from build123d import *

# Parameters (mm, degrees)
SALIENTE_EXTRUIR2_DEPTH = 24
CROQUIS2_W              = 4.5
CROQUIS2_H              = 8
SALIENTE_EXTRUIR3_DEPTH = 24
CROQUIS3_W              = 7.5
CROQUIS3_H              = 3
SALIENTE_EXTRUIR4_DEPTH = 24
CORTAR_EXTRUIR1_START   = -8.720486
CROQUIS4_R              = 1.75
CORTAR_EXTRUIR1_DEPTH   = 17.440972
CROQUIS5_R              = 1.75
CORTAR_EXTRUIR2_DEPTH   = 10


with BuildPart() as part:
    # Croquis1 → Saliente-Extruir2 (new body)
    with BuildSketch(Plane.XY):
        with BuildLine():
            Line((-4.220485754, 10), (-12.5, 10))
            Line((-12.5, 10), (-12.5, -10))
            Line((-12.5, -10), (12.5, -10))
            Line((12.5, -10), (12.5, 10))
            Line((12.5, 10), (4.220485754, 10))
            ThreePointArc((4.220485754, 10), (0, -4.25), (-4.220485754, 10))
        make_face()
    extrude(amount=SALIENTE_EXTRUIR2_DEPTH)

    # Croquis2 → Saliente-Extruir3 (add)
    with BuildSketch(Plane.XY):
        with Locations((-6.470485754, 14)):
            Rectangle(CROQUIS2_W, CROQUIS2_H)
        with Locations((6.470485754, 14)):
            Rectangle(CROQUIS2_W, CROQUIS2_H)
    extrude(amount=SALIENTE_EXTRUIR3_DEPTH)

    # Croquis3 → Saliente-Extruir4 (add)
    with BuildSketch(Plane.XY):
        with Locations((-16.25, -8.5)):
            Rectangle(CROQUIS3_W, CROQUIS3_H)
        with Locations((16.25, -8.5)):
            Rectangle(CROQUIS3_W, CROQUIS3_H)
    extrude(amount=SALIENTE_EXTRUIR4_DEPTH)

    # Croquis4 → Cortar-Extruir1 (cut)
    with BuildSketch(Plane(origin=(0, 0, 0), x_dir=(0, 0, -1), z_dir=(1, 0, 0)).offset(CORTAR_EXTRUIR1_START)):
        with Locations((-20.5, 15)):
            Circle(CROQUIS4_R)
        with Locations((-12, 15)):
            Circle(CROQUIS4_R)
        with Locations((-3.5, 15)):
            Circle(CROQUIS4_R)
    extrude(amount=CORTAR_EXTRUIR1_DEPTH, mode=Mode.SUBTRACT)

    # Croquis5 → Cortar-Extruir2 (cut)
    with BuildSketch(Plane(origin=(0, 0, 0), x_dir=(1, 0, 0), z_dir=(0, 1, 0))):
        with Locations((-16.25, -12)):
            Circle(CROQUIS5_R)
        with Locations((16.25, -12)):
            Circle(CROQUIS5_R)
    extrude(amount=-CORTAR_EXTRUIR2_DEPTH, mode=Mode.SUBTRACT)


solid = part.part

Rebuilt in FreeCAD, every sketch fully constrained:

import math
import FreeCAD as App
import Part
import Sketcher

V = App.Vector

doc = App.newDocument("Part")
params = doc.addObject("Spreadsheet::Sheet", "Params")
for row, (alias, value) in enumerate([
    ("sketch1_width", "25 mm"),
    ("sketch1_height", "20 mm"),
    ("sketch1_radius", "7.75 mm"),
    ("pad1_length", "24 mm"),
    ("sketch2_height", "8 mm"),
    ("sketch2_width", "4.5 mm"),
    ("pad2_length", "24 mm"),
    ("sketch3_height", "3 mm"),
    ("sketch3_width", "7.5 mm"),
    ("pad3_length", "24 mm"),
    ("sketch4_diameter", "3.5 mm"),
    ("pocket1_length", "17.440972 mm"),
    ("sketch5_diameter", "3.5 mm"),
    ("pocket2_length", "10 mm"),
], start=1):
    params.set(f"A{row}", alias)
    params.set(f"B{row}", "=" + value)
    params.setAlias(f"B{row}", alias)

body = doc.addObject("PartDesign::Body", "Body")

sketch1 = body.newObject("Sketcher::SketchObject", "Sketch")
sketch1.AttachmentSupport = (doc.getObject("XY_Plane"), [""])
sketch1.MapMode = "FlatFace"
sketch1.addGeometry([
    Part.LineSegment(V(-4, 10, 0), V(-12, 10, 0)),
    Part.LineSegment(V(-12, 10, 0), V(-12, -10, 0)),
    Part.LineSegment(V(-12, -10, 0), V(12, -10, 0)),
    Part.LineSegment(V(12, -10, 0), V(12, 10, 0)),
    Part.LineSegment(V(12, 10, 0), V(4, 10, 0)),
    Part.ArcOfCircle(Part.Circle(V(0, 4, 0), V(0, 0, 1), 8), math.radians(123), math.radians(417)),
], False)
sketch1.addConstraint([
    Sketcher.Constraint("Coincident", 0, 2, 1, 1),
    Sketcher.Constraint("Coincident", 1, 2, 2, 1),
    Sketcher.Constraint("Coincident", 2, 2, 3, 1),
    Sketcher.Constraint("Coincident", 3, 2, 4, 1),
    Sketcher.Constraint("Coincident", 4, 2, 5, 2),
    Sketcher.Constraint("Coincident", 5, 1, 0, 1),
    Sketcher.Constraint("Horizontal", 0),
    Sketcher.Constraint("Vertical", 1),
    Sketcher.Constraint("Horizontal", 2),
    Sketcher.Constraint("Vertical", 3),
    Sketcher.Constraint("Horizontal", 4),
    Sketcher.Constraint("Symmetric", 0, 2, 2, 2, -1, 1),
    Sketcher.Constraint("Symmetric", 4, 2, 5, 1, -2),
    Sketcher.Constraint("DistanceX", 2, 1, 2, 2, 25.0),
    Sketcher.Constraint("DistanceY", 1, 2, 1, 1, 20.0),
    Sketcher.Constraint("Radius", 5, 7.75),
    Sketcher.Constraint("DistanceY", -1, 1, 5, 3, 3.5),
])
sketch1.setExpression("Constraints[13]", "Params.sketch1_width")
sketch1.setExpression("Constraints[14]", "Params.sketch1_height")
sketch1.setExpression("Constraints[15]", "Params.sketch1_radius")
pad1 = body.newObject("PartDesign::Pad", "Pad")
pad1.Profile = sketch1
pad1.setExpression("Length", "Params.pad1_length")

sketch2 = body.newObject("Sketcher::SketchObject", "Sketch001")
sketch2.AttachmentSupport = (doc.getObject("XY_Plane"), [""])
sketch2.MapMode = "FlatFace"
sketch2.addGeometry([
    Part.LineSegment(V(-8.7, 18, 0), V(-8.7, 10, 0)),
    Part.LineSegment(V(-8.7, 10, 0), V(-4.2, 10, 0)),
    Part.LineSegment(V(-4.2, 10, 0), V(-4.2, 18, 0)),
    Part.LineSegment(V(-4.2, 18, 0), V(-8.7, 18, 0)),
    Part.LineSegment(V(4.2, 18, 0), V(4.2, 10, 0)),
    Part.LineSegment(V(4.2, 10, 0), V(8.7, 10, 0)),
    Part.LineSegment(V(8.7, 10, 0), V(8.7, 18, 0)),
    Part.LineSegment(V(8.7, 18, 0), V(4.2, 18, 0)),
], False)
sketch2.addConstraint([
    Sketcher.Constraint("Coincident", 0, 2, 1, 1),
    Sketcher.Constraint("Coincident", 1, 2, 2, 1),
    Sketcher.Constraint("Coincident", 2, 2, 3, 1),
    Sketcher.Constraint("Coincident", 3, 2, 0, 1),
    Sketcher.Constraint("Coincident", 4, 2, 5, 1),
    Sketcher.Constraint("Coincident", 5, 2, 6, 1),
    Sketcher.Constraint("Coincident", 6, 2, 7, 1),
    Sketcher.Constraint("Coincident", 7, 2, 4, 1),
    Sketcher.Constraint("Vertical", 0),
    Sketcher.Constraint("Horizontal", 1),
    Sketcher.Constraint("Vertical", 2),
    Sketcher.Constraint("Horizontal", 3),
    Sketcher.Constraint("Vertical", 4),
    Sketcher.Constraint("Horizontal", 5),
    Sketcher.Constraint("Vertical", 6),
    Sketcher.Constraint("Horizontal", 7),
    Sketcher.Constraint("Symmetric", 1, 2, 4, 2, -2),
    Sketcher.Constraint("Symmetric", 3, 2, 6, 2, -2),
    Sketcher.Constraint("DistanceY", 0, 2, 0, 1, 8.0),
    Sketcher.Constraint("DistanceX", 1, 1, 1, 2, 4.5),
    Sketcher.Constraint("DistanceY", -1, 1, 0, 2, 10.0),
    Sketcher.Constraint("DistanceX", 1, 2, 4, 2, 8.440972),
])
sketch2.setExpression("Constraints[18]", "Params.sketch2_height")
sketch2.setExpression("Constraints[19]", "Params.sketch2_width")
pad2 = body.newObject("PartDesign::Pad", "Pad001")
pad2.Profile = sketch2
pad2.setExpression("Length", "Params.pad2_length")

sketch3 = body.newObject("Sketcher::SketchObject", "Sketch002")
sketch3.AttachmentSupport = (doc.getObject("XY_Plane"), [""])
sketch3.MapMode = "FlatFace"
sketch3.addGeometry([
    Part.LineSegment(V(-20, -7, 0), V(-20, -10, 0)),
    Part.LineSegment(V(-20, -10, 0), V(-12.5, -10, 0)),
    Part.LineSegment(V(-12.5, -10, 0), V(-12.5, -7, 0)),
    Part.LineSegment(V(-12.5, -7, 0), V(-20, -7, 0)),
    Part.LineSegment(V(12.5, -7, 0), V(12.5, -10, 0)),
    Part.LineSegment(V(12.5, -10, 0), V(20, -10, 0)),
    Part.LineSegment(V(20, -10, 0), V(20, -7, 0)),
    Part.LineSegment(V(20, -7, 0), V(12.5, -7, 0)),
], False)
sketch3.addConstraint([
    Sketcher.Constraint("Coincident", 0, 2, 1, 1),
    Sketcher.Constraint("Coincident", 1, 2, 2, 1),
    Sketcher.Constraint("Coincident", 2, 2, 3, 1),
    Sketcher.Constraint("Coincident", 3, 2, 0, 1),
    Sketcher.Constraint("Coincident", 4, 2, 5, 1),
    Sketcher.Constraint("Coincident", 5, 2, 6, 1),
    Sketcher.Constraint("Coincident", 6, 2, 7, 1),
    Sketcher.Constraint("Coincident", 7, 2, 4, 1),
    Sketcher.Constraint("Vertical", 0),
    Sketcher.Constraint("Horizontal", 1),
    Sketcher.Constraint("Vertical", 2),
    Sketcher.Constraint("Horizontal", 3),
    Sketcher.Constraint("Vertical", 4),
    Sketcher.Constraint("Horizontal", 5),
    Sketcher.Constraint("Vertical", 6),
    Sketcher.Constraint("Horizontal", 7),
    Sketcher.Constraint("Symmetric", 1, 2, 4, 2, -2),
    Sketcher.Constraint("Symmetric", 3, 2, 6, 2, -2),
    Sketcher.Constraint("DistanceY", 0, 2, 0, 1, 3.0),
    Sketcher.Constraint("DistanceX", 1, 1, 1, 2, 7.5),
    Sketcher.Constraint("DistanceX", 0, 2, -1, 1, 20.0),
    Sketcher.Constraint("DistanceY", 0, 2, -1, 1, 10.0),
])
sketch3.setExpression("Constraints[18]", "Params.sketch3_height")
sketch3.setExpression("Constraints[19]", "Params.sketch3_width")
pad3 = body.newObject("PartDesign::Pad", "Pad002")
pad3.Profile = sketch3
pad3.setExpression("Length", "Params.pad3_length")

sketch4 = body.newObject("Sketcher::SketchObject", "Sketch003")
sketch4.AttachmentSupport = (doc.getObject("YZ_Plane"), [""])
sketch4.MapMode = "FlatFace"
sketch4.AttachmentOffset = App.Placement(V(0, 0, -8.720486), App.Rotation())
sketch4.addGeometry([
    Part.Circle(V(15, 20.5, 0), V(0, 0, 1), 1.8),
    Part.Circle(V(15, 12, 0), V(0, 0, 1), 1.8),
    Part.Circle(V(15, 3.5, 0), V(0, 0, 1), 1.8),
], False)
sketch4.addConstraint([
    Sketcher.Constraint("Equal", 0, 1),
    Sketcher.Constraint("Equal", 1, 2),
    Sketcher.Constraint("Vertical", 0, 3, 1, 3),
    Sketcher.Constraint("Vertical", 1, 3, 2, 3),
    Sketcher.Constraint("Diameter", 0, 3.5),
    Sketcher.Constraint("DistanceX", -1, 1, 0, 3, 15.0),
    Sketcher.Constraint("DistanceY", -1, 1, 1, 3, 12.0),
    Sketcher.Constraint("DistanceY", 2, 3, 0, 3, 17.0),
    Sketcher.Constraint("DistanceY", -1, 1, 0, 3, 20.5),
])
sketch4.setExpression("Constraints[4]", "Params.sketch4_diameter")
pocket1 = body.newObject("PartDesign::Pocket", "Pocket")
pocket1.Profile = sketch4
pocket1.setExpression("Length", "Params.pocket1_length")
pocket1.Reversed = True

sketch5 = body.newObject("Sketcher::SketchObject", "Sketch004")
sketch5.AttachmentSupport = (doc.getObject("XZ_Plane"), [""])
sketch5.MapMode = "FlatFace"
sketch5.addGeometry([
    Part.Circle(V(-16.2, 12, 0), V(0, 0, 1), 1.8),
    Part.Circle(V(16.2, 12, 0), V(0, 0, 1), 1.8),
], False)
sketch5.addConstraint([
    Sketcher.Constraint("Equal", 0, 1),
    Sketcher.Constraint("Symmetric", 0, 3, 1, 3, -2),
    Sketcher.Constraint("Diameter", 0, 3.5),
    Sketcher.Constraint("DistanceY", -1, 1, 0, 3, 12.0),
    Sketcher.Constraint("DistanceX", 0, 3, 1, 3, 32.5),
])
sketch5.setExpression("Constraints[2]", "Params.sketch5_diameter")
pocket2 = body.newObject("PartDesign::Pocket", "Pocket001")
pocket2.Profile = sketch5
pocket2.setExpression("Length", "Params.pocket2_length")
pocket2.Reversed = True

doc.recompute()
